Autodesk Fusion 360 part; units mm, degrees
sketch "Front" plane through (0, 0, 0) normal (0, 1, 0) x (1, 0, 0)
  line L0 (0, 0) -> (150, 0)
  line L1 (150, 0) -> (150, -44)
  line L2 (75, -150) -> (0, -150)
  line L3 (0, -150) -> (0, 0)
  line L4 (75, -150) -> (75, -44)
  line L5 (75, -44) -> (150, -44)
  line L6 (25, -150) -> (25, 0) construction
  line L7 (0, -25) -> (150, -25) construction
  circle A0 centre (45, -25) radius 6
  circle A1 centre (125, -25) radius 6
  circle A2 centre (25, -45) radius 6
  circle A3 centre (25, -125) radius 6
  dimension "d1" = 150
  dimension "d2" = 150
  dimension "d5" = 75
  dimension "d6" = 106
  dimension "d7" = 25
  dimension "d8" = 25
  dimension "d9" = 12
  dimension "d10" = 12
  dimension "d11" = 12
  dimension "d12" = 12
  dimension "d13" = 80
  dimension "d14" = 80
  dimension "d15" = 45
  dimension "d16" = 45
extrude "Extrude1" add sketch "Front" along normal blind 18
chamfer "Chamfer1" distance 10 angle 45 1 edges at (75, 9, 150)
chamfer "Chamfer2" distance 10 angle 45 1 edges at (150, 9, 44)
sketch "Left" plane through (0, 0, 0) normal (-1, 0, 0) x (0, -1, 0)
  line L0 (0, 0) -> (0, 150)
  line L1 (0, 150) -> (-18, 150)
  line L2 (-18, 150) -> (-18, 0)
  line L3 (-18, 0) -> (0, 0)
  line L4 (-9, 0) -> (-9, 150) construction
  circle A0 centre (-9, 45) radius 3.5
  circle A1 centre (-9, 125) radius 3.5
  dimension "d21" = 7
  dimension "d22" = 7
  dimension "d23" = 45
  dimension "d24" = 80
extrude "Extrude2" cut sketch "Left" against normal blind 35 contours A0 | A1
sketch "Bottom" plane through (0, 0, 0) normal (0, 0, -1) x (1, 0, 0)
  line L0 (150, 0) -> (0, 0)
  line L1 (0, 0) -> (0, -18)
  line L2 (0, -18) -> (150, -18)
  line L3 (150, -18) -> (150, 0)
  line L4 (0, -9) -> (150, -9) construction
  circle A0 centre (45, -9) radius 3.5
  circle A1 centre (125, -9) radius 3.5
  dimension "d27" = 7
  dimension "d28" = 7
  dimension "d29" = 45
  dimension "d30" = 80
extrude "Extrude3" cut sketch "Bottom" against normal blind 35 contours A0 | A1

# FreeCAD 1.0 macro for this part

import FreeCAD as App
import Part
import Sketcher
Q = App.Units.Quantity


def edges_at(feature, points):
    """Names of the edges that pass closest to the given points."""
    edges = feature.Shape.Edges
    near = lambda p: min(range(len(edges)), key=lambda i: edges[i].distToShape(Part.Vertex(*p))[0])
    return sorted({f"Edge{near(p) + 1}" for p in points})

doc = App.newDocument("Part")
body = doc.addObject("PartDesign::Body", "Body")

# Sketch on XZ plane
sketch1 = body.newObject("Sketcher::SketchObject", "Sketch")
sketch1.AttachmentSupport = (doc.getObject("XZ_Plane"), [""])
sketch1.MapMode = "FlatFace"
sketch1.addGeometry([
    Part.LineSegment(App.Vector(150, 0, 0), App.Vector(0, 0, 0)),  # 0
    Part.LineSegment(App.Vector(0, 0, 0), App.Vector(0, 150, 0)),  # 1
    Part.LineSegment(App.Vector(0, 150, 0), App.Vector(75, 150, 0)),  # 2
    Part.LineSegment(App.Vector(75, 150, 0), App.Vector(75, 44, 0)),  # 3
    Part.LineSegment(App.Vector(75, 44, 0), App.Vector(150, 44, 0)),  # 4
    Part.LineSegment(App.Vector(150, 44, 0), App.Vector(150, 0, 0)),  # 5
    Part.Circle(App.Vector(25, 125, 0), App.Vector(0, 0, 1), 6),  # 6
    Part.Circle(App.Vector(25, 45, 0), App.Vector(0, 0, 1), 6),  # 7
    Part.Circle(App.Vector(45, 25, 0), App.Vector(0, 0, 1), 6),  # 8
    Part.Circle(App.Vector(125, 25, 0), App.Vector(0, 0, 1), 6),  # 9
], False)
sketch1.addConstraint([
    Sketcher.Constraint("Coincident", 0, 2, 1, 1),
    Sketcher.Constraint("Coincident", 1, 2, 2, 1),
    Sketcher.Constraint("Coincident", 2, 2, 3, 1),
    Sketcher.Constraint("Coincident", 3, 2, 4, 1),
    Sketcher.Constraint("Coincident", 4, 2, 5, 1),
    Sketcher.Constraint("Coincident", 5, 2, 0, 1),
    Sketcher.Constraint("Horizontal", 0),
    Sketcher.Constraint("Vertical", 1),
    Sketcher.Constraint("Horizontal", 2),
    Sketcher.Constraint("Vertical", 3),
    Sketcher.Constraint("Horizontal", 4),
    Sketcher.Constraint("Vertical", 5),
    Sketcher.Constraint("Coincident", 0, 2, -1, 1),
    Sketcher.Constraint("Equal", 6, 7),
    Sketcher.Constraint("Equal", 7, 8),
    Sketcher.Constraint("Equal", 8, 9),
    Sketcher.Constraint("Horizontal", 8, 3, 9, 3),
    Sketcher.Constraint("Vertical", 6, 3, 7, 3),
    Sketcher.Constraint("Equal", 2, 4),
    Sketcher.Constraint("Equal", 0, 1),
    Sketcher.Constraint("Diameter", 6, Q("12 mm")),
    Sketcher.Constraint("DistanceX", 0, 2, 0, 1, Q("150 mm")),
    Sketcher.Constraint("DistanceY", 3, 2, 3, 1, Q("106 mm")),
    Sketcher.Constraint("DistanceX", -1, 1, 6, 3, Q("25 mm")),
    Sketcher.Constraint("DistanceY", -1, 1, 7, 3, Q("45 mm")),
    Sketcher.Constraint("DistanceX", -1, 1, 8, 3, Q("45 mm")),
    Sketcher.Constraint("DistanceY", -1, 1, 8, 3, Q("25 mm")),
    Sketcher.Constraint("DistanceY", 7, 3, 6, 3, Q("80 mm")),
    Sketcher.Constraint("DistanceX", 8, 3, 9, 3, Q("80 mm")),
])
pad1 = body.newObject("PartDesign::Pad", "Pad")
pad1.Profile = sketch1
pad1.Length = 18
pad1.Reversed = True
doc.recompute()

chamfer = body.newObject("PartDesign::Chamfer", "Chamfer")
chamfer.Base = (pad1, edges_at(pad1, [(75, 9, 150)]))
chamfer.Size = 10
doc.recompute()

chamfer2 = body.newObject("PartDesign::Chamfer", "Chamfer001")
chamfer2.Base = (chamfer, edges_at(chamfer, [(150, 9, 44)]))
chamfer2.Size = 10

# Sketch on YZ plane
sketch2 = body.newObject("Sketcher::SketchObject", "Sketch001")
sketch2.AttachmentSupport = (doc.getObject("YZ_Plane"), [""])
sketch2.MapMode = "FlatFace"
sketch2.addGeometry([
    Part.Circle(App.Vector(9, 45, 0), App.Vector(0, 0, 1), 3.5),
    Part.Circle(App.Vector(9, 125, 0), App.Vector(0, 0, 1), 3.5),
], False)
sketch2.addConstraint([
    Sketcher.Constraint("Equal", 0, 1),
    Sketcher.Constraint("Vertical", 0, 3, 1, 3),
    Sketcher.Constraint("Diameter", 0, Q("7 mm")),
    Sketcher.Constraint("DistanceY", -1, 1, 0, 3, Q("45 mm")),
    Sketcher.Constraint("DistanceY", 0, 3, 1, 3, Q("80 mm")),
    Sketcher.Constraint("DistanceX", -1, 1, 0, 3, Q("9 mm")),
])
pocket1 = body.newObject("PartDesign::Pocket", "Pocket")
pocket1.Profile = sketch2
pocket1.Length = 35
pocket1.Reversed = True

# Sketch on XY plane
sketch3 = body.newObject("Sketcher::SketchObject", "Sketch002")
sketch3.AttachmentSupport = (doc.getObject("XY_Plane"), [""])
sketch3.MapMode = "FlatFace"
sketch3.addGeometry([
    Part.Circle(App.Vector(45, 9, 0), App.Vector(0, 0, 1), 3.5),
    Part.Circle(App.Vector(125, 9, 0), App.Vector(0, 0, 1), 3.5),
], False)
sketch3.addConstraint([
    Sketcher.Constraint("Equal", 0, 1),
    Sketcher.Constraint("Horizontal", 0, 3, 1, 3),
    Sketcher.Constraint("Diameter", 0, Q("7 mm")),
    Sketcher.Constraint("DistanceX", -1, 1, 0, 3, Q("45 mm")),
    Sketcher.Constraint("DistanceX", 0, 3, 1, 3, Q("80 mm")),
    Sketcher.Constraint("DistanceY", -1, 1, 0, 3, Q("9 mm")),
])
pocket2 = body.newObject("PartDesign::Pocket", "Pocket001")
pocket2.Profile = sketch3
pocket2.Length = 35
pocket2.Reversed = True

doc.recompute()
